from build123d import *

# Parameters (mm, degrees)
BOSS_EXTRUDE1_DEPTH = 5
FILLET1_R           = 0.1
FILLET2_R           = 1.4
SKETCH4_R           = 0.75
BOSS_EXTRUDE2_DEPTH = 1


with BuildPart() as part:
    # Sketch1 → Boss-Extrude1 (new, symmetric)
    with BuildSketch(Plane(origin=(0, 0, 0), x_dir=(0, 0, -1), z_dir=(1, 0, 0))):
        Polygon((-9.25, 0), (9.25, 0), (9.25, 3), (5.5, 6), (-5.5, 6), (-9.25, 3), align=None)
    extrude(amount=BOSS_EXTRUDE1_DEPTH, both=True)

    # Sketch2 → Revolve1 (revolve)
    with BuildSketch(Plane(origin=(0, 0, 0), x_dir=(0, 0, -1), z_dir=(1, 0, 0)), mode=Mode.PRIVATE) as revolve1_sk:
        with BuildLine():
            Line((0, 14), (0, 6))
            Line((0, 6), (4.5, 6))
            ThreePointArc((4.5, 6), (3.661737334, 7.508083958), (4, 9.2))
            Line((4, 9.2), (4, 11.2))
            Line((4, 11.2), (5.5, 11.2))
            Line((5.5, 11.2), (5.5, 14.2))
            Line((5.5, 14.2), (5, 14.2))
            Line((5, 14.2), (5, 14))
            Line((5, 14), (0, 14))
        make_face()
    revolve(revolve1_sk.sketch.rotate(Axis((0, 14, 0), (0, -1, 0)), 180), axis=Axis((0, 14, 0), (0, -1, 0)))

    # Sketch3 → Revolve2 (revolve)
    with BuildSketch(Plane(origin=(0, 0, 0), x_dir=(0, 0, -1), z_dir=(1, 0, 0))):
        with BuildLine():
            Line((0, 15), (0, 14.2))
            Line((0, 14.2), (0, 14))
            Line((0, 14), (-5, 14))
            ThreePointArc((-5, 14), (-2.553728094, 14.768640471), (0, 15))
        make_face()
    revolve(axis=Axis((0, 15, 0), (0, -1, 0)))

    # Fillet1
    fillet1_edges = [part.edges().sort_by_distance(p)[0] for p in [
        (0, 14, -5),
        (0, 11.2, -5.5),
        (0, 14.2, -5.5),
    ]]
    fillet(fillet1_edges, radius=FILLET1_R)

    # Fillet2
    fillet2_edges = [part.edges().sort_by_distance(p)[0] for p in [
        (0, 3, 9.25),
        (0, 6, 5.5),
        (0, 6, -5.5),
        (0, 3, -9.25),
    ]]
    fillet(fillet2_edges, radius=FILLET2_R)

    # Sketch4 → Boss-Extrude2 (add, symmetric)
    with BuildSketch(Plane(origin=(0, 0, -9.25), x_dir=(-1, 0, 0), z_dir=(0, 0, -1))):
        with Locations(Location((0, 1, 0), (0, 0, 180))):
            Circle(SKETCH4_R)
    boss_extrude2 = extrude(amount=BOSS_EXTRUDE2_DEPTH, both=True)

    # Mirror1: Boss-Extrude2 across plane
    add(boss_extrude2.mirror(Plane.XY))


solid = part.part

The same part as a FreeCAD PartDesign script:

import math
import FreeCAD as App
import Part
import Sketcher
Q = App.Units.Quantity


def edges_at(feature, points):
    """Names of the edges that pass closest to the given points."""
    edges = feature.Shape.Edges
    near = lambda p: min(range(len(edges)), key=lambda i: edges[i].distToShape(Part.Vertex(*p))[0])
    return sorted({f"Edge{near(p) + 1}" for p in points})

doc = App.newDocument("Part")
params = doc.addObject("Spreadsheet::Sheet", "Params")
for row, (alias, value) in enumerate([
    ("sketch1_width", "3 mm"),
    ("sketch1_height", "11 mm"),
    ("sketch1_height2", "18.5 mm"),
    ("pad1_length", "10 mm"),
    ("sketch2_radius", "2.5 mm"),
    ("sketch2_width", "8 mm"),
    ("sketch2_width2", "2 mm"),
    ("sketch2_width3", "3 mm"),
    ("sketch2_height", "5 mm"),
    ("revolution_angle", "360 deg"),
    ("sketch3_radius", "12 mm"),
    ("sketch3_width", "1 mm"),
    ("sketch3_height", "5 mm"),
    ("revolution2_angle", "360 deg"),
    ("fillet_radius", "0.1 mm"),
    ("fillet2_radius", "1.4 mm"),
    ("sketch4_diameter", "1.5 mm"),
    ("pad2_length", "2 mm"),
], start=1):
    params.set(f"A{row}", alias)
    params.set(f"B{row}", "=" + value)
    params.setAlias(f"B{row}", alias)

body = doc.addObject("PartDesign::Body", "Body")

# Sketch on YZ plane
sketch1 = doc.addObject("Sketcher::SketchObject", "Sketch")
body.addObject(sketch1)
sketch1.AttachmentSupport = (doc.YZ_Plane, [""])
sketch1.MapMode = "FlatFace"
sketch1.addGeometry([
    Part.LineSegment(App.Vector(0, 9.25, 0), App.Vector(0, -9.25, 0)),  # 0
    Part.LineSegment(App.Vector(0, -9.25, 0), App.Vector(3, -9.25, 0)),  # 1
    Part.LineSegment(App.Vector(3, -9.25, 0), App.Vector(6, -5.5, 0)),  # 2
    Part.LineSegment(App.Vector(6, -5.5, 0), App.Vector(6, 5.5, 0)),  # 3
    Part.LineSegment(App.Vector(6, 5.5, 0), App.Vector(3, 9.25, 0)),  # 4
    Part.LineSegment(App.Vector(3, 9.25, 0), App.Vector(0, 9.25, 0)),  # 5
], False)
sketch1.addConstraint([
    Sketcher.Constraint("Coincident", 0, 2, 1, 1),
    Sketcher.Constraint("Coincident", 1, 2, 2, 1),
    Sketcher.Constraint("Coincident", 2, 2, 3, 1),
    Sketcher.Constraint("Coincident", 3, 2, 4, 1),
    Sketcher.Constraint("Coincident", 4, 2, 5, 1),
    Sketcher.Constraint("Coincident", 5, 2, 0, 1),
    Sketcher.Constraint("Vertical", 0),
    Sketcher.Constraint("Horizontal", 1),
    Sketcher.Constraint("Vertical", 3),
    Sketcher.Constraint("Horizontal", 5),
    Sketcher.Constraint("Symmetric", 0, 2, 5, 2, -1, 1),
    Sketcher.Constraint("Vertical", 1, 2, 4, 2),
    Sketcher.Constraint("Equal", 2, 4),
    Sketcher.Constraint("DistanceX", 1, 1, 1, 2, Q("3 mm")),
    Sketcher.Constraint("DistanceY", 3, 1, 3, 2, Q("11 mm")),
    Sketcher.Constraint("DistanceY", 0, 2, 0, 1, Q("18.5 mm")),
    Sketcher.Constraint("DistanceX", -1, 1, 2, 2, Q("6 mm")),
])
sketch1.setExpression("Constraints[13]", "Params.sketch1_width")
sketch1.setExpression("Constraints[14]", "Params.sketch1_height")
sketch1.setExpression("Constraints[15]", "Params.sketch1_height2")
pad1 = doc.addObject("PartDesign::Pad", "Pad")
body.addObject(pad1)
pad1.Profile = sketch1
pad1.setExpression("Length", "Params.pad1_length")
pad1.Midplane = True

# Sketch on YZ plane
sketch2 = doc.addObject("Sketcher::SketchObject", "Sketch001")
body.addObject(sketch2)
sketch2.AttachmentSupport = (doc.YZ_Plane, [""])
sketch2.MapMode = "FlatFace"
sketch2.addGeometry([
    Part.LineSegment(App.Vector(14, 0, 0), App.Vector(6, 0, 0)),  # 0
    Part.LineSegment(App.Vector(6, 0, 0), App.Vector(6, -4.5, 0)),  # 1
    Part.ArcOfCircle(Part.Circle(App.Vector(7.894026, -6.131767, 0), App.Vector(0, 0, 1), 2.5), math.radians(58.507326), math.radians(139.253992)),  # 2
    Part.LineSegment(App.Vector(9.2, -4, 0), App.Vector(11.2, -4, 0)),  # 3
    Part.LineSegment(App.Vector(11.2, -4, 0), App.Vector(11.2, -5.5, 0)),  # 4
    Part.LineSegment(App.Vector(11.2, -5.5, 0), App.Vector(14.2, -5.5, 0)),  # 5
    Part.LineSegment(App.Vector(14.2, -5.5, 0), App.Vector(14.2, -5, 0)),  # 6
    Part.LineSegment(App.Vector(14.2, -5, 0), App.Vector(14, -5, 0)),  # 7
    Part.LineSegment(App.Vector(14, -5, 0), App.Vector(14, 0, 0)),  # 8
], False)
sketch2.addConstraint([
    Sketcher.Constraint("Coincident", 0, 2, 1, 1),
    Sketcher.Constraint("Coincident", 1, 2, 2, 2),
    Sketcher.Constraint("Coincident", 2, 1, 3, 1),
    Sketcher.Constraint("Coincident", 3, 2, 4, 1),
    Sketcher.Constraint("Coincident", 4, 2, 5, 1),
    Sketcher.Constraint("Coincident", 5, 2, 6, 1),
    Sketcher.Constraint("Coincident", 6, 2, 7, 1),
    Sketcher.Constraint("Coincident", 7, 2, 8, 1),
    Sketcher.Constraint("Coincident", 8, 2, 0, 1),
    Sketcher.Constraint("Horizontal", 0),
    Sketcher.Constraint("Vertical", 1),
    Sketcher.Constraint("Horizontal", 3),
    Sketcher.Constraint("Vertical", 4),
    Sketcher.Constraint("Horizontal", 5),
    Sketcher.Constraint("Vertical", 6),
    Sketcher.Constraint("Horizontal", 7),
    Sketcher.Constraint("Vertical", 8),
    Sketcher.Constraint("PointOnObject", 0, 2, -1),
    Sketcher.Constraint("Radius", 2, Q("2.5 mm")),
    Sketcher.Constraint("DistanceX", 0, 2, 0, 1, Q("8 mm")),
    Sketcher.Constraint("DistanceX", 3, 1, 3, 2, Q("2 mm")),
    Sketcher.Constraint("DistanceX", 5, 1, 5, 2, Q("3 mm")),
    Sketcher.Constraint("DistanceY", 8, 1, 8, 2, Q("5 mm")),
    Sketcher.Constraint("DistanceX", 7, 2, 7, 1, Q("0.2 mm")),
    Sketcher.Constraint("DistanceY", 1, 2, 1, 1, Q("4.5 mm")),
    Sketcher.Constraint("DistanceY", 4, 2, 4, 1, Q("1.5 mm")),
    Sketcher.Constraint("DistanceY", 6, 1, 6, 2, Q("0.5 mm")),
    Sketcher.Constraint("DistanceX", -1, 1, 0, 2, Q("6 mm")),
])
sketch2.setExpression("Constraints[18]", "Params.sketch2_radius")
sketch2.setExpression("Constraints[19]", "Params.sketch2_width")
sketch2.setExpression("Constraints[20]", "Params.sketch2_width2")
sketch2.setExpression("Constraints[21]", "Params.sketch2_width3")
sketch2.setExpression("Constraints[22]", "Params.sketch2_height")
revolution = doc.addObject("PartDesign::Revolution", "Revolution")
body.addObject(revolution)
revolution.Profile = sketch2
revolution.ReferenceAxis = (sketch2, ["H_Axis"])
revolution.setExpression("Angle", "Params.revolution_angle")

# Sketch on YZ plane
sketch3 = doc.addObject("Sketcher::SketchObject", "Sketch002")
body.addObject(sketch3)
sketch3.AttachmentSupport = (doc.YZ_Plane, [""])
sketch3.MapMode = "FlatFace"
sketch3.addGeometry([
    Part.LineSegment(App.Vector(14, 0, 0), App.Vector(15, 0, 0)),
    Part.ArcOfCircle(Part.Circle(App.Vector(3.001672, 0.200334, 0), App.Vector(0, 0, 1), 12), math.radians(-0.956571), math.radians(23.576436)),
    Part.LineSegment(App.Vector(14, 5, 0), App.Vector(14, 0, 0)),
], False)
sketch3.addConstraint([
    Sketcher.Constraint("Coincident", 0, 2, 1, 1),
    Sketcher.Constraint("Coincident", 1, 2, 2, 1),
    Sketcher.Constraint("Coincident", 2, 2, 0, 1),
    Sketcher.Constraint("Horizontal", 0),
    Sketcher.Constraint("Vertical", 2),
    Sketcher.Constraint("PointOnObject", 0, 2, -1),
    Sketcher.Constraint("Radius", 1, Q("12 mm")),
    Sketcher.Constraint("DistanceX", 0, 1, 0, 2, Q("1 mm")),
    Sketcher.Constraint("DistanceY", 2, 2, 2, 1, Q("5 mm")),
    Sketcher.Constraint("DistanceX", -1, 1, 0, 2, Q("15 mm")),
])
sketch3.setExpression("Constraints[6]", "Params.sketch3_radius")
sketch3.setExpression("Constraints[7]", "Params.sketch3_width")
sketch3.setExpression("Constraints[8]", "Params.sketch3_height")
revolution2 = doc.addObject("PartDesign::Revolution", "Revolution001")
body.addObject(revolution2)
revolution2.Profile = sketch3
revolution2.ReferenceAxis = (sketch3, ["H_Axis"])
revolution2.setExpression("Angle", "Params.revolution2_angle")
doc.recompute()

fillet = doc.addObject("PartDesign::Fillet", "Fillet")
body.addObject(fillet)
fillet.Base = (revolution2, edges_at(revolution2, [(0, 14, -5), (0, 11.2, -5.5), (0, 14.2, -5.5)]))
fillet.setExpression("Radius", "Params.fillet_radius")
doc.recompute()

fillet2 = doc.addObject("PartDesign::Fillet", "Fillet001")
body.addObject(fillet2)
fillet2.Base = (fillet, edges_at(fillet, [
    (0, 3, 9.25),
    (0, 6, 5.5),
    (0, 6, -5.5),
    (0, 3, -9.25),
]))
fillet2.setExpression("Radius", "Params.fillet2_radius")

# Sketch on XY plane
sketch4 = doc.addObject("Sketcher::SketchObject", "Sketch003")
body.addObject(sketch4)
sketch4.AttachmentSupport = (doc.XY_Plane, [""])
sketch4.MapMode = "FlatFace"
sketch4.AttachmentOffset = App.Placement(App.Vector(0, 0, -9.25), App.Rotation())
sketch4.addGeometry(Part.Circle(App.Vector(0, 1, 0), App.Vector(0, 0, 1), 0.75), False)
sketch4.addConstraint([
    Sketcher.Constraint("PointOnObject", 0, 3, -2),
    Sketcher.Constraint("Diameter", 0, Q("1.5 mm")),
    Sketcher.Constraint("DistanceY", -1, 1, 0, 3, Q("1 mm")),
])
sketch4.setExpression("Constraints[1]", "Params.sketch4_diameter")
pad2 = doc.addObject("PartDesign::Pad", "Pad001")
body.addObject(pad2)
pad2.Profile = sketch4
pad2.setExpression("Length", "Params.pad2_length")
pad2.Midplane = True
doc.recompute()

mirrored = doc.addObject("PartDesign::Mirrored", "Mirrored")
body.addObject(mirrored)
mirrored.Originals = [pad2]
mirrored.MirrorPlane = (doc.XY_Plane, [""])
body.Tip = mirrored

doc.recompute()
